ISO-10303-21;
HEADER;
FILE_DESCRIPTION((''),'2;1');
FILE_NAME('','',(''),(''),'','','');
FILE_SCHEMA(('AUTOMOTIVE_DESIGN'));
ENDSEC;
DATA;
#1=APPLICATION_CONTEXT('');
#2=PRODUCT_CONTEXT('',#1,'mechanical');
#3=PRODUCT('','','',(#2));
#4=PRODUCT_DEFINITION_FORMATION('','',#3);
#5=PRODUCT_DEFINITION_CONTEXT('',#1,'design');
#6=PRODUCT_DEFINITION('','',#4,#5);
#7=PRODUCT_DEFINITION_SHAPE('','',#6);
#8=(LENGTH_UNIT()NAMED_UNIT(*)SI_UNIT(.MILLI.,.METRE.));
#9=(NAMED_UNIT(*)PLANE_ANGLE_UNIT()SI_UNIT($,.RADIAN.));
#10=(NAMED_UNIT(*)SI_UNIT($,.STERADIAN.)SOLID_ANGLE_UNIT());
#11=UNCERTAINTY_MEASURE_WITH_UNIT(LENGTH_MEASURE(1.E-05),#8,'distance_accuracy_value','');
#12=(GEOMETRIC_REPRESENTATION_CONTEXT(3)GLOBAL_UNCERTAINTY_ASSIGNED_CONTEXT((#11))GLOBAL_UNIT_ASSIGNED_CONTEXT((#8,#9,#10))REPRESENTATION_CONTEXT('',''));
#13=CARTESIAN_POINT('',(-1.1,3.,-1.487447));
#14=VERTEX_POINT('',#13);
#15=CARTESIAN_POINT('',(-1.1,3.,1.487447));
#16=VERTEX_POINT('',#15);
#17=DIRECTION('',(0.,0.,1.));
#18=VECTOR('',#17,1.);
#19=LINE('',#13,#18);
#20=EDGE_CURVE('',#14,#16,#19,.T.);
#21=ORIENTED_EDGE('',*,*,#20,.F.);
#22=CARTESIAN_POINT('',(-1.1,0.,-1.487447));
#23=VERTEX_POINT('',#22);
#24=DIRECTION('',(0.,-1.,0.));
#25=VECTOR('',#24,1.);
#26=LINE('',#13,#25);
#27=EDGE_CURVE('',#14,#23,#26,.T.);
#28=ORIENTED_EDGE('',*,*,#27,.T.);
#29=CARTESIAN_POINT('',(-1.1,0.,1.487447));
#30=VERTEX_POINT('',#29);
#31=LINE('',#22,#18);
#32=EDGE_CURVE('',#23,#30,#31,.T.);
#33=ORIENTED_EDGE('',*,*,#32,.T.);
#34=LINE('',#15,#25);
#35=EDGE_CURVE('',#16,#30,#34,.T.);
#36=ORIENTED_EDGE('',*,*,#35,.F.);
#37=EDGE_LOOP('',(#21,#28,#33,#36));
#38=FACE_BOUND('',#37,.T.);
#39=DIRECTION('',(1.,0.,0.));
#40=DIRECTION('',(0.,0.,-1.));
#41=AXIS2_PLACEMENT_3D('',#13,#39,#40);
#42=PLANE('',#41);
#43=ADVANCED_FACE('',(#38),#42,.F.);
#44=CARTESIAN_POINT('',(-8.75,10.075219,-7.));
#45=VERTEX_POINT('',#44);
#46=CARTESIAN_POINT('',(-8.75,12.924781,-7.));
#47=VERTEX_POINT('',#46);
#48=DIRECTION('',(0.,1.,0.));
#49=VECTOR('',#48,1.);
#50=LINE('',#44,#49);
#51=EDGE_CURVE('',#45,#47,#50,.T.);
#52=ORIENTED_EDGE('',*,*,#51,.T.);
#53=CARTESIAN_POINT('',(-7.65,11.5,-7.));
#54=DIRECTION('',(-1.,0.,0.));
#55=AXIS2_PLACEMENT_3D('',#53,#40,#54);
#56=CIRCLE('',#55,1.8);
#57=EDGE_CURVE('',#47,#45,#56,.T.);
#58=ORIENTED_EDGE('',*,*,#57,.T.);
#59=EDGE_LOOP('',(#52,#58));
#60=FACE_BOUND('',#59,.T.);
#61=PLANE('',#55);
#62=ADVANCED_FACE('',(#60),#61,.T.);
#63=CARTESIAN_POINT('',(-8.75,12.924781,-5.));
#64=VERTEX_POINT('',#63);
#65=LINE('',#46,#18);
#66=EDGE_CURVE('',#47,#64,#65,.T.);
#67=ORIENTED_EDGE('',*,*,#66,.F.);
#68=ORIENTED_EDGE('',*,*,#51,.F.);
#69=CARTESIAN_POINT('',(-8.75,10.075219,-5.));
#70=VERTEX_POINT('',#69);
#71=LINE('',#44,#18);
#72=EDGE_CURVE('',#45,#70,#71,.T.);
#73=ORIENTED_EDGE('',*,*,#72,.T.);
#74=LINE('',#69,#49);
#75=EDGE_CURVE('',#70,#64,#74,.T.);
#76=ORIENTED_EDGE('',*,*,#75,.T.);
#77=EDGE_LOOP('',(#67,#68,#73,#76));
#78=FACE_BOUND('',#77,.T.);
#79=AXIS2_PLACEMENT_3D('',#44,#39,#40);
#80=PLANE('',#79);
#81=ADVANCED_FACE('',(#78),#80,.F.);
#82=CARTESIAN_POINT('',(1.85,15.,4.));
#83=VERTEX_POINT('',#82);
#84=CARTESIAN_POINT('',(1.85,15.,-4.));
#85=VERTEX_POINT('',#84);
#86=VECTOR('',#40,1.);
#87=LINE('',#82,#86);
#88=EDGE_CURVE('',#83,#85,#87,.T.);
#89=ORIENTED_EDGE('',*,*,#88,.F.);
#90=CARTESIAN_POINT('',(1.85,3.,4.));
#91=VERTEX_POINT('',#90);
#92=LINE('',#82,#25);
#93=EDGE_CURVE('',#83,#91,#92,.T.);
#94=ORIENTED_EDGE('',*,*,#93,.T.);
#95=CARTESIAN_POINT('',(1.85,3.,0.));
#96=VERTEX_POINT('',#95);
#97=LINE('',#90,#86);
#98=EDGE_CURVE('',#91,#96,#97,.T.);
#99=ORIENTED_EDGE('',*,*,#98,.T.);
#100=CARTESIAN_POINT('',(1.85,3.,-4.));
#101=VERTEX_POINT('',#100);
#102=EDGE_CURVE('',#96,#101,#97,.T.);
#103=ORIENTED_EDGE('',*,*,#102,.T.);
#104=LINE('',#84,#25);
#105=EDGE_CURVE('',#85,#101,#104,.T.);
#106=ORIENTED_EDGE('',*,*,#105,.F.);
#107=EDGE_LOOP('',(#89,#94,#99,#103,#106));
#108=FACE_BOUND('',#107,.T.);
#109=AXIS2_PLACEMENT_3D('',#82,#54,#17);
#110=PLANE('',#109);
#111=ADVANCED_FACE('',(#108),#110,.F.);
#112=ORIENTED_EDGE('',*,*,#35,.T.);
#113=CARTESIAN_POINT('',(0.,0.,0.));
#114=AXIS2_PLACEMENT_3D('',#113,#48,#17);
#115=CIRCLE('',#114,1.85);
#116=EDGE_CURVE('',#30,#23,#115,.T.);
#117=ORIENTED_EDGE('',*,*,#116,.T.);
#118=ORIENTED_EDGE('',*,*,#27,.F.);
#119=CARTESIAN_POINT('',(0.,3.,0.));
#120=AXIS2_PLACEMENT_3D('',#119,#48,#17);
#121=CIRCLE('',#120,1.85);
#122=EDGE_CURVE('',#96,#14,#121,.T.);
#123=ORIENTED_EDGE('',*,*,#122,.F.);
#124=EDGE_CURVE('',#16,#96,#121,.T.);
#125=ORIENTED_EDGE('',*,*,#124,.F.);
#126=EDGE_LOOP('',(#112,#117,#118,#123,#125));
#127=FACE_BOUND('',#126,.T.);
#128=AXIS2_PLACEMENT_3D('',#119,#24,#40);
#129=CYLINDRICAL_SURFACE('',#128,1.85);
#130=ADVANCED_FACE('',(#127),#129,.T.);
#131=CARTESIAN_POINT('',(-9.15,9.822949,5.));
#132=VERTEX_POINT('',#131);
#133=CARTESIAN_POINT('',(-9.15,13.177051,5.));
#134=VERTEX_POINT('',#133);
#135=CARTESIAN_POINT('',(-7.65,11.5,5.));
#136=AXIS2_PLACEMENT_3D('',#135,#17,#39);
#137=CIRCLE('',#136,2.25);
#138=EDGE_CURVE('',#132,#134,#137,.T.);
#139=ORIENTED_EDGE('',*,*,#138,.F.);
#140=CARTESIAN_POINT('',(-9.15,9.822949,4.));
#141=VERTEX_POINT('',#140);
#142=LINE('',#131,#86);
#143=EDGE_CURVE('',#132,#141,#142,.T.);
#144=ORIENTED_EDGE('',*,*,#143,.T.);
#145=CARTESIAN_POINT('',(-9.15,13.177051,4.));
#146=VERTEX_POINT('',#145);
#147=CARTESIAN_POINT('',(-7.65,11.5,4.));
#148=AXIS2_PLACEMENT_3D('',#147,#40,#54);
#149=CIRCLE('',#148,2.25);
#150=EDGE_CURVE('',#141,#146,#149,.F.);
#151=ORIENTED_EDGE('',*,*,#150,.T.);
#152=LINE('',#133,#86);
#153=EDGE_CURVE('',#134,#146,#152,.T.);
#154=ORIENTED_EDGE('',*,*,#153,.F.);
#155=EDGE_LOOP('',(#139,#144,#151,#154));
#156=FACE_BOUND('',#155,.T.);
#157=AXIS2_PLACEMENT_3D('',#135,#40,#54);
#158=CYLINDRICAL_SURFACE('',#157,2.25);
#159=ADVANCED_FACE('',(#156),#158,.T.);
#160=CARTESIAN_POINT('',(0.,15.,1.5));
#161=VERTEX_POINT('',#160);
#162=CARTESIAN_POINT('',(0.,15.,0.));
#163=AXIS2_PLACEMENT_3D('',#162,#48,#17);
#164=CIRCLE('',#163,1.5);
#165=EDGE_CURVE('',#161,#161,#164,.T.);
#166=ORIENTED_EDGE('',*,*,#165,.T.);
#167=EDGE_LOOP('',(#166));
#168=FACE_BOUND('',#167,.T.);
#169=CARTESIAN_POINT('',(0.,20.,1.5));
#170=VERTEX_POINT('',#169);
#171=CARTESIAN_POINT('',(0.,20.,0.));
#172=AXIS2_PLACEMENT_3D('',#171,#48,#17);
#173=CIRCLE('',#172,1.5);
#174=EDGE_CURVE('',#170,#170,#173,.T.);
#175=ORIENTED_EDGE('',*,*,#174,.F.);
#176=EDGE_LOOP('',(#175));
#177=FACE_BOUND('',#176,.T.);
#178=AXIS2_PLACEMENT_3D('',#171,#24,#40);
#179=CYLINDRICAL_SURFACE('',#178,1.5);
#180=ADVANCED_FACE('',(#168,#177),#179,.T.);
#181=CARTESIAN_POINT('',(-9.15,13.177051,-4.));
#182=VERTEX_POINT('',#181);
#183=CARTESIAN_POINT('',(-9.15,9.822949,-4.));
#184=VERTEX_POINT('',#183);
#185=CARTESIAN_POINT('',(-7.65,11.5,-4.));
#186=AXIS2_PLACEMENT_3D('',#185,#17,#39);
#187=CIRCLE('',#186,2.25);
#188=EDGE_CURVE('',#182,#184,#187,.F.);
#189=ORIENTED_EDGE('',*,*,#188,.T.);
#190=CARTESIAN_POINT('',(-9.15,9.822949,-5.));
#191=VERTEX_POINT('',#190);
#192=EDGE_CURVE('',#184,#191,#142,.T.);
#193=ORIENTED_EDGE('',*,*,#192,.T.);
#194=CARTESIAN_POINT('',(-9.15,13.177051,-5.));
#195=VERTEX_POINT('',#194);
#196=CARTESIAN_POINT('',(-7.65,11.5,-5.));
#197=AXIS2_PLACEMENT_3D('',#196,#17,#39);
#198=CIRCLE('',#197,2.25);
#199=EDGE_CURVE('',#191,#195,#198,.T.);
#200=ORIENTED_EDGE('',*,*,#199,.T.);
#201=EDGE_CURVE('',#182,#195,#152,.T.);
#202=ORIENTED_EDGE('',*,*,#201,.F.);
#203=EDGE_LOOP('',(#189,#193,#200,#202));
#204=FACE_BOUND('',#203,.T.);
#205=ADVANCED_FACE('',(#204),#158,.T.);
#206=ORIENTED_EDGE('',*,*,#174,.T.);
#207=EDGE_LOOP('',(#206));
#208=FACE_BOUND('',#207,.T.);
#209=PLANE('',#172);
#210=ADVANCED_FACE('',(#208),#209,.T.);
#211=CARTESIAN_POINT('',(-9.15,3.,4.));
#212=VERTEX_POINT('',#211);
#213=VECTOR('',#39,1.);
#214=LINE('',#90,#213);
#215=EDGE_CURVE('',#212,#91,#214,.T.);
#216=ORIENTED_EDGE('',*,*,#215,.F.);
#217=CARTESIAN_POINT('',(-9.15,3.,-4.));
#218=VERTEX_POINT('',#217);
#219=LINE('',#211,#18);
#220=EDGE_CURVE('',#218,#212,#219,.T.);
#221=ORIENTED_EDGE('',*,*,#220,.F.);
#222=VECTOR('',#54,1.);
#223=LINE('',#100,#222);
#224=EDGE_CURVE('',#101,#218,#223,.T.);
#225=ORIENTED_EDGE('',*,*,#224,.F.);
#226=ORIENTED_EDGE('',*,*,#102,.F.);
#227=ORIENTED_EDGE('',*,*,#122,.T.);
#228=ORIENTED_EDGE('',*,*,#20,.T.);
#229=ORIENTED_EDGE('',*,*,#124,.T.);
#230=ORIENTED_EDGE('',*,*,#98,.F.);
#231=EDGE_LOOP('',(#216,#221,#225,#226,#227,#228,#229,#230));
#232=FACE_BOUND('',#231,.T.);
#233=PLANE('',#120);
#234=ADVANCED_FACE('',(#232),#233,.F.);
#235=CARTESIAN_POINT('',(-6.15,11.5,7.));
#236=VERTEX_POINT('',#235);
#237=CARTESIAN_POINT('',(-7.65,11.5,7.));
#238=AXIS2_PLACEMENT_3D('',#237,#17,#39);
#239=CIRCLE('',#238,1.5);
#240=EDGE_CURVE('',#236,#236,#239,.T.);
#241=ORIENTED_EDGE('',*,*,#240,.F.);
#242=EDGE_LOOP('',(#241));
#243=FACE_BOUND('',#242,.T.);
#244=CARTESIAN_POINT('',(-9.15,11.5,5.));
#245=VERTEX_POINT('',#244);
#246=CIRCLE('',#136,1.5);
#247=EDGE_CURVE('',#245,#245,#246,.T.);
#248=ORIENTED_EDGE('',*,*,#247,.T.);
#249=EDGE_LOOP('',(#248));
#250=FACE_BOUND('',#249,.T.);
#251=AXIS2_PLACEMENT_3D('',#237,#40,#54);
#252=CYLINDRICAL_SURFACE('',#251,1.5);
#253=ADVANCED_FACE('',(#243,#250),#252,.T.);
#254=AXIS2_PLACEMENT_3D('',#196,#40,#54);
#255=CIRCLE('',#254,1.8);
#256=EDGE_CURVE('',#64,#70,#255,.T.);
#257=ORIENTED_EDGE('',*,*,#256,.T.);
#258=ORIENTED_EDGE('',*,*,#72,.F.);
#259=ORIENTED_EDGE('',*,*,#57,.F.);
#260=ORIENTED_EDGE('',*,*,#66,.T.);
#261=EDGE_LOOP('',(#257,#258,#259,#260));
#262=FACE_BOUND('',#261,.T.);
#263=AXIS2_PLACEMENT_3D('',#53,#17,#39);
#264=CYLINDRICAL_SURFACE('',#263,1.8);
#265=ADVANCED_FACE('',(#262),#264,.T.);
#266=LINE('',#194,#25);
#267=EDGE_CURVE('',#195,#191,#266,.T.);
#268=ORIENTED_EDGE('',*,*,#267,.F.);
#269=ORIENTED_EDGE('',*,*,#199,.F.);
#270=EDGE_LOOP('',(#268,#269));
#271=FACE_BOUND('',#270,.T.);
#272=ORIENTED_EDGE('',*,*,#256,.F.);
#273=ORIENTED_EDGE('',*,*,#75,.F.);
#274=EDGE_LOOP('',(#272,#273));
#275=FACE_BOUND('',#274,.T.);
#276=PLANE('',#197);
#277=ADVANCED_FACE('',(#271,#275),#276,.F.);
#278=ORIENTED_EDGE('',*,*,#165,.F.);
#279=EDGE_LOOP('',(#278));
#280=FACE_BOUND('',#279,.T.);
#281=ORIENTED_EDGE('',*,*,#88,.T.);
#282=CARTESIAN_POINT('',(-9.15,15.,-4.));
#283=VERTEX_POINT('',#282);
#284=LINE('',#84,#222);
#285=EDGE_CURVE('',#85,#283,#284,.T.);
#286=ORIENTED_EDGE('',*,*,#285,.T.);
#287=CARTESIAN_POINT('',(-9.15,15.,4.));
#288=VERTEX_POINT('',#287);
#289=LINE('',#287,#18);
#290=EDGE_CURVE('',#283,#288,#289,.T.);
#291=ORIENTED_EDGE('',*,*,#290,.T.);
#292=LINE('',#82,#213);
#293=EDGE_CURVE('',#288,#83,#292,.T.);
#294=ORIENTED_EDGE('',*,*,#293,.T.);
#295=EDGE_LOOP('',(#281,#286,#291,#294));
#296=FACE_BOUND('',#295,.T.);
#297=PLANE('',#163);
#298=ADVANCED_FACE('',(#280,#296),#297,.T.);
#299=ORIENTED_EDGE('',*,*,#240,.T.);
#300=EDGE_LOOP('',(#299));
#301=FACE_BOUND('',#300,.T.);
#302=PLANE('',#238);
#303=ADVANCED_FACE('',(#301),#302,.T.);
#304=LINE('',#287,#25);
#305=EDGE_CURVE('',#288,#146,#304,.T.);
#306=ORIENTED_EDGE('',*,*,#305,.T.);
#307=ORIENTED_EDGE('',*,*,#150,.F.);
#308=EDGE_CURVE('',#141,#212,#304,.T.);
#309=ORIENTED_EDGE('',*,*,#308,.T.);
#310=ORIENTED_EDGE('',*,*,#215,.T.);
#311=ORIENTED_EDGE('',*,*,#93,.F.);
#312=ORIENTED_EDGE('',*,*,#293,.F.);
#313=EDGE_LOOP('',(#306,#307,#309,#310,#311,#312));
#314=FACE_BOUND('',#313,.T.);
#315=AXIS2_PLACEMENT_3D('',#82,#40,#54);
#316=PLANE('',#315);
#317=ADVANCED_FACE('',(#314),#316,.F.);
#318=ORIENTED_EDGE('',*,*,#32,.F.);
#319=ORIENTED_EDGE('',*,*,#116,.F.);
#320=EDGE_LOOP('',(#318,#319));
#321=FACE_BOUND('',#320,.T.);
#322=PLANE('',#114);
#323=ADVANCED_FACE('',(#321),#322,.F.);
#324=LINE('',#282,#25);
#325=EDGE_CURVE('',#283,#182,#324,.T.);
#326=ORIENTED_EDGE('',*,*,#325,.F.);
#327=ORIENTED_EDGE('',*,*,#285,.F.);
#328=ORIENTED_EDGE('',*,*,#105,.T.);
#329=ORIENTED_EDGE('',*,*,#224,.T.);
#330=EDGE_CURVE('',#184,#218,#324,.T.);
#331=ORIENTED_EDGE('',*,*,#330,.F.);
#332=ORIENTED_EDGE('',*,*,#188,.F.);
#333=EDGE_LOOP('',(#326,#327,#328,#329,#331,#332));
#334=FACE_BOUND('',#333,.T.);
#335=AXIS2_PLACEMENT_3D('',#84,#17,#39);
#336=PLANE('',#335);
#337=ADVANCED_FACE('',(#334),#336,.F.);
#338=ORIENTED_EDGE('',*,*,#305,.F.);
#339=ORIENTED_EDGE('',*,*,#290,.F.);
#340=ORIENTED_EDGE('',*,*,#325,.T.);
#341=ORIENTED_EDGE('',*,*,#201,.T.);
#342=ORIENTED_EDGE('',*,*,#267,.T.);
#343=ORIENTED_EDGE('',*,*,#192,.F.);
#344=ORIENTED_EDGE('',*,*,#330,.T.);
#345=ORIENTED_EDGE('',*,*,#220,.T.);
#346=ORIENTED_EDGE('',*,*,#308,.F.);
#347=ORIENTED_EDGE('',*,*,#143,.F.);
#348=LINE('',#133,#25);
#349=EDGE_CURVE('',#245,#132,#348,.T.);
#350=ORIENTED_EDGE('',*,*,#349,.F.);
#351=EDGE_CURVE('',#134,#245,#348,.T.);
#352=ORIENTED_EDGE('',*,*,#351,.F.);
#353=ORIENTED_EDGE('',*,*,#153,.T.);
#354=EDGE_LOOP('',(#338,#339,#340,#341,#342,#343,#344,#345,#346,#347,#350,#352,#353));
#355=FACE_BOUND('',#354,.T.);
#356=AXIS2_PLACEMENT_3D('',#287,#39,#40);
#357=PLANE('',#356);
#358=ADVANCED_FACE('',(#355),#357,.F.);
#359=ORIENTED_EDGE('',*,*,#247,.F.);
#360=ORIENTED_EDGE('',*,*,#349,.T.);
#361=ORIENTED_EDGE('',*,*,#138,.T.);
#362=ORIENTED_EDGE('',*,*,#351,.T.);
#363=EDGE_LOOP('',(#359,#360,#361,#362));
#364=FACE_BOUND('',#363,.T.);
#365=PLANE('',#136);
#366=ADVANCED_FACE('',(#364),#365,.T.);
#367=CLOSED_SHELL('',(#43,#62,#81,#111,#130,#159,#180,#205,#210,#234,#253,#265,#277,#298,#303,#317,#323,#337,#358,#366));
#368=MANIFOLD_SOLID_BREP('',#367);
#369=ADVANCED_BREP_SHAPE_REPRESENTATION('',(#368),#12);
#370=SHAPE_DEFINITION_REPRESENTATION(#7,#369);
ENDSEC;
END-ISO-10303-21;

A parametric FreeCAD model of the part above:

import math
import FreeCAD as App
import Part
import Sketcher
from FreeCAD import Vector
Q = App.Units.Quantity

doc = App.newDocument("Part")
body = doc.addObject("PartDesign::Body", "Body")

# Sketch on XZ plane
sketch1 = body.newObject("Sketcher::SketchObject", "Sketch")
sketch1.AttachmentSupport = (doc.getObject("XZ_Plane"), [""])
sketch1.MapMode = "FlatFace"
sketch1.addGeometry(Part.LineSegment(Vector(-1.1, -1.487447, 0), Vector(-1.1, 1.487447, 0)), False)
sketch1.addGeometry(Part.ArcOfCircle(Part.Circle(Vector(0, 0, 0), Vector(0, 0, 1), 1.85), math.radians(-126.483737), math.radians(126.483737)), False)
sketch1.addConstraint(Sketcher.Constraint("Coincident", 0, 1, 1, 1))
sketch1.addConstraint(Sketcher.Constraint("Coincident", 1, 2, 0, 2))
sketch1.addConstraint(Sketcher.Constraint("Vertical", 0))
sketch1.addConstraint(Sketcher.Constraint("Coincident", 1, 3, -1, 1))
sketch1.addConstraint(Sketcher.Constraint("Radius", 1, Q("1.85 mm")))
sketch1.addConstraint(Sketcher.Constraint("DistanceX", 0, 1, -1, 1, Q("1.1 mm")))
pad1 = body.newObject("PartDesign::Pad", "Pad")
pad1.Profile = sketch1
pad1.Length = 3
pad1.Reversed = True

# Sketch on XZ plane
sketch2 = body.newObject("Sketcher::SketchObject", "Sketch001")
sketch2.AttachmentSupport = (doc.getObject("XZ_Plane"), [""])
sketch2.MapMode = "FlatFace"
sketch2.AttachmentOffset = App.Placement(Vector(0, 0, -3), App.Rotation())
sketch2.addGeometry(Part.LineSegment(Vector(-9.15, -4, 0), Vector(-9.15, 4, 0)), False)
sketch2.addGeometry(Part.LineSegment(Vector(-9.15, 4, 0), Vector(1.85, 4, 0)), False)
sketch2.addGeometry(Part.LineSegment(Vector(1.85, 4, 0), Vector(1.85, -4, 0)), False)
sketch2.addGeometry(Part.LineSegment(Vector(1.85, -4, 0), Vector(-9.15, -4, 0)), False)
sketch2.addConstraint(Sketcher.Constraint("Coincident", 0, 2, 1, 1))
sketch2.addConstraint(Sketcher.Constraint("Coincident", 1, 2, 2, 1))
sketch2.addConstraint(Sketcher.Constraint("Coincident", 2, 2, 3, 1))
sketch2.addConstraint(Sketcher.Constraint("Coincident", 3, 2, 0, 1))
sketch2.addConstraint(Sketcher.Constraint("Vertical", 0))
sketch2.addConstraint(Sketcher.Constraint("Horizontal", 1))
sketch2.addConstraint(Sketcher.Constraint("Vertical", 2))
sketch2.addConstraint(Sketcher.Constraint("Horizontal", 3))
sketch2.addConstraint(Sketcher.Constraint("DistanceX", 1, 1, 1, 2, Q("11 mm")))
sketch2.addConstraint(Sketcher.Constraint("DistanceY", 0, 1, 0, 2, Q("8 mm")))
sketch2.addConstraint(Sketcher.Constraint("DistanceY", -1, 1, 0, 2, Q("4 mm")))
sketch2.addConstraint(Sketcher.Constraint("DistanceX", 0, 2, -1, 1, Q("9.15 mm")))
pad2 = body.newObject("PartDesign::Pad", "Pad001")
pad2.Profile = sketch2
pad2.Length = 12
pad2.Reversed = True

# Sketch on XZ plane
sketch3 = body.newObject("Sketcher::SketchObject", "Sketch002")
sketch3.AttachmentSupport = (doc.getObject("XZ_Plane"), [""])
sketch3.MapMode = "FlatFace"
sketch3.AttachmentOffset = App.Placement(Vector(0, 0, -15), App.Rotation())
sketch3.addGeometry(Part.Circle(Vector(0, 0, 0), Vector(0, 0, 1), 1.5), False)
sketch3.addConstraint(Sketcher.Constraint("Coincident", 0, 3, -1, 1))
sketch3.addConstraint(Sketcher.Constraint("Diameter", 0, Q("3 mm")))
pad3 = body.newObject("PartDesign::Pad", "Pad002")
pad3.Profile = sketch3
pad3.Length = 5
pad3.Reversed = True

# Sketch on XY plane
sketch4 = body.newObject("Sketcher::SketchObject", "Sketch003")
sketch4.AttachmentSupport = (doc.getObject("XY_Plane"), [""])
sketch4.MapMode = "FlatFace"
sketch4.addGeometry(Part.LineSegment(Vector(-9.15, 13.177051, 0), Vector(-9.15, 9.822949, 0)), False)
sketch4.addGeometry(Part.ArcOfCircle(Part.Circle(Vector(-7.65, 11.5, 0), Vector(0, 0, 1), 2.25), math.radians(-131.810315), math.radians(131.810315)), False)
sketch4.addConstraint(Sketcher.Constraint("Coincident", 0, 1, 1, 2))
sketch4.addConstraint(Sketcher.Constraint("Coincident", 1, 1, 0, 2))
sketch4.addConstraint(Sketcher.Constraint("Vertical", 0))
sketch4.addConstraint(Sketcher.Constraint("Radius", 1, Q("2.25 mm")))
sketch4.addConstraint(Sketcher.Constraint("DistanceY", -1, 1, 1, 3, Q("11.5 mm")))
sketch4.addConstraint(Sketcher.Constraint("DistanceX", 0, 1, 1, 3, Q("1.5 mm")))
sketch4.addConstraint(Sketcher.Constraint("DistanceX", 1, 3, -1, 1, Q("7.65 mm")))
pad4 = body.newObject("PartDesign::Pad", "Pad003")
pad4.Profile = sketch4
pad4.Length = 10
pad4.Midplane = True

# Sketch on XY plane
sketch5 = body.newObject("Sketcher::SketchObject", "Sketch004")
sketch5.AttachmentSupport = (doc.getObject("XY_Plane"), [""])
sketch5.MapMode = "FlatFace"
sketch5.AttachmentOffset = App.Placement(Vector(0, 0, 5), App.Rotation())
sketch5.addGeometry(Part.Circle(Vector(-7.65, 11.5, 0), Vector(0, 0, 1), 1.5), False)
sketch5.addConstraint(Sketcher.Constraint("Diameter", 0, Q("3 mm")))
sketch5.addConstraint(Sketcher.Constraint("DistanceY", -1, 1, 0, 3, Q("11.5 mm")))
sketch5.addConstraint(Sketcher.Constraint("DistanceX", 0, 3, -1, 1, Q("7.65 mm")))
pad5 = body.newObject("PartDesign::Pad", "Pad004")
pad5.Profile = sketch5
pad5.Length = 2

# Sketch on XY plane
sketch6 = body.newObject("Sketcher::SketchObject", "Sketch005")
sketch6.AttachmentSupport = (doc.getObject("XY_Plane"), [""])
sketch6.MapMode = "FlatFace"
sketch6.AttachmentOffset = App.Placement(Vector(0, 0, -5), App.Rotation())
sketch6.addGeometry(Part.LineSegment(Vector(-8.75, 10.075219, 0), Vector(-8.75, 12.924781, 0)), False)
sketch6.addGeometry(Part.ArcOfCircle(Part.Circle(Vector(-7.65, 11.5, 0), Vector(0, 0, 1), 1.8), math.radians(-127.669887), math.radians(127.669887)), False)
sketch6.addConstraint(Sketcher.Constraint("Coincident", 0, 1, 1, 1))
sketch6.addConstraint(Sketcher.Constraint("Coincident", 1, 2, 0, 2))
sketch6.addConstraint(Sketcher.Constraint("Vertical", 0))
sketch6.addConstraint(Sketcher.Constraint("Radius", 1, Q("1.8 mm")))
sketch6.addConstraint(Sketcher.Constraint("DistanceY", -1, 1, 1, 3, Q("11.5 mm")))
sketch6.addConstraint(Sketcher.Constraint("DistanceX", 0, 1, 1, 3, Q("1.1 mm")))
sketch6.addConstraint(Sketcher.Constraint("DistanceX", 1, 3, -1, 1, Q("7.65 mm")))
pad6 = body.newObject("PartDesign::Pad", "Pad005")
pad6.Profile = sketch6
pad6.Length = 2
pad6.Reversed = True

doc.recompute()
